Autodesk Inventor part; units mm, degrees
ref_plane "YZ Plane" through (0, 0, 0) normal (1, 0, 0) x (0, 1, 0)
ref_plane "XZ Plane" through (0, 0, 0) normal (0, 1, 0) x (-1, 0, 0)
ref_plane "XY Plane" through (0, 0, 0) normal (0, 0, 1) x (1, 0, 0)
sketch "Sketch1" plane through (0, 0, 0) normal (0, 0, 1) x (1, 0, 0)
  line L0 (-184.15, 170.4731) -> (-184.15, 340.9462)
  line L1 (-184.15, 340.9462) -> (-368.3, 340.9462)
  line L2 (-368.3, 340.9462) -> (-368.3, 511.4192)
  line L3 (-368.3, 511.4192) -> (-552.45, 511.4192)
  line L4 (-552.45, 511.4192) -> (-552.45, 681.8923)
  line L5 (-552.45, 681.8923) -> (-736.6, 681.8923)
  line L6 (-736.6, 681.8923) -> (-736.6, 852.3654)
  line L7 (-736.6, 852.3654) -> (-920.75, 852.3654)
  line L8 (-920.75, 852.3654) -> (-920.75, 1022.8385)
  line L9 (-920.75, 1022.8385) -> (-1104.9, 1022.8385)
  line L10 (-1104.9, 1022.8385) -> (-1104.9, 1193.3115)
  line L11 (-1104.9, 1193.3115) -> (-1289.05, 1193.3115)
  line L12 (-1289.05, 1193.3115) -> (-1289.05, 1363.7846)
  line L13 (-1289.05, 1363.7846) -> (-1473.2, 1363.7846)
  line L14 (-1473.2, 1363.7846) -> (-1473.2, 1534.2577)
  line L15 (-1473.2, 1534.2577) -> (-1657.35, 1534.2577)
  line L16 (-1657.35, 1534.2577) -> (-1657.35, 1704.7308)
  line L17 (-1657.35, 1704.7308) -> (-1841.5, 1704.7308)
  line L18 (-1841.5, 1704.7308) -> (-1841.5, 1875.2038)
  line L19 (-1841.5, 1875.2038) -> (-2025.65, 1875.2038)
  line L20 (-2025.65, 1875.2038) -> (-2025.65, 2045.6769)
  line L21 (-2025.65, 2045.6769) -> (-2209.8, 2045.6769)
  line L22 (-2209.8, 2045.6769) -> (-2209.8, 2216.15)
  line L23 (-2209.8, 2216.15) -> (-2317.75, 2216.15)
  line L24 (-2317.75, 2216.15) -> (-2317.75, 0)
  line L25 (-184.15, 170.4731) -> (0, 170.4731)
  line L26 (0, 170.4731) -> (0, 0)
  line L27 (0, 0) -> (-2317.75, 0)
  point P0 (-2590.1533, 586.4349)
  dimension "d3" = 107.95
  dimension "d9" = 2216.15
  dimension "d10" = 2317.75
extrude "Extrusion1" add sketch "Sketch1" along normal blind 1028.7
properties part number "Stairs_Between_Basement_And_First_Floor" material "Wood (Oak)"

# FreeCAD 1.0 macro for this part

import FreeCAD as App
import Part
import Sketcher
Q = App.Units.Quantity

doc = App.newDocument("Part")
body = doc.addObject("PartDesign::Body", "Body")

# Sketch on XY plane
sketch1 = body.newObject("Sketcher::SketchObject", "Sketch")
sketch1.AttachmentSupport = (doc.getObject("XY_Plane"), [""])
sketch1.MapMode = "FlatFace"
sketch1.addGeometry([
    Part.LineSegment(App.Vector(0, 170, 0), App.Vector(-184, 170, 0)),  # 0
    Part.LineSegment(App.Vector(-184, 170, 0), App.Vector(-184, 341, 0)),  # 1
    Part.LineSegment(App.Vector(-184, 341, 0), App.Vector(-368, 341, 0)),  # 2
    Part.LineSegment(App.Vector(-368, 341, 0), App.Vector(-368, 511, 0)),  # 3
    Part.LineSegment(App.Vector(-368, 511, 0), App.Vector(-552, 511, 0)),  # 4
    Part.LineSegment(App.Vector(-552, 511, 0), App.Vector(-552, 682, 0)),  # 5
    Part.LineSegment(App.Vector(-552, 682, 0), App.Vector(-737, 682, 0)),  # 6
    Part.LineSegment(App.Vector(-737, 682, 0), App.Vector(-737, 852, 0)),  # 7
    Part.LineSegment(App.Vector(-737, 852, 0), App.Vector(-921, 852, 0)),  # 8
    Part.LineSegment(App.Vector(-921, 852, 0), App.Vector(-921, 1023, 0)),  # 9
    Part.LineSegment(App.Vector(-921, 1023, 0), App.Vector(-1105, 1023, 0)),  # 10
    Part.LineSegment(App.Vector(-1105, 1023, 0), App.Vector(-1105, 1193, 0)),  # 11
    Part.LineSegment(App.Vector(-1105, 1193, 0), App.Vector(-1289, 1193, 0)),  # 12
    Part.LineSegment(App.Vector(-1289, 1193, 0), App.Vector(-1289, 1364, 0)),  # 13
    Part.LineSegment(App.Vector(-1289, 1364, 0), App.Vector(-1473, 1364, 0)),  # 14
    Part.LineSegment(App.Vector(-1473, 1364, 0), App.Vector(-1473, 1534, 0)),  # 15
    Part.LineSegment(App.Vector(-1473, 1534, 0), App.Vector(-1657, 1534, 0)),  # 16
    Part.LineSegment(App.Vector(-1657, 1534, 0), App.Vector(-1657, 1705, 0)),  # 17
    Part.LineSegment(App.Vector(-1657, 1705, 0), App.Vector(-1842, 1705, 0)),  # 18
    Part.LineSegment(App.Vector(-1842, 1705, 0), App.Vector(-1842, 1875, 0)),  # 19
    Part.LineSegment(App.Vector(-1842, 1875, 0), App.Vector(-2026, 1875, 0)),  # 20
    Part.LineSegment(App.Vector(-2026, 1875, 0), App.Vector(-2026, 2046, 0)),  # 21
    Part.LineSegment(App.Vector(-2026, 2046, 0), App.Vector(-2210, 2046, 0)),  # 22
    Part.LineSegment(App.Vector(-2210, 2046, 0), App.Vector(-2210, 2216, 0)),  # 23
    Part.LineSegment(App.Vector(-2210, 2216, 0), App.Vector(-2318, 2216, 0)),  # 24
    Part.LineSegment(App.Vector(-2318, 2216, 0), App.Vector(-2318, 0, 0)),  # 25
    Part.LineSegment(App.Vector(-2318, 0, 0), App.Vector(0, 0, 0)),  # 26
    Part.LineSegment(App.Vector(0, 0, 0), App.Vector(0, 170, 0)),  # 27
], False)
sketch1.addConstraint([
    Sketcher.Constraint("Coincident", 0, 2, 1, 1),
    Sketcher.Constraint("Coincident", 1, 2, 2, 1),
    Sketcher.Constraint("Coincident", 2, 2, 3, 1),
    Sketcher.Constraint("Coincident", 3, 2, 4, 1),
    Sketcher.Constraint("Coincident", 4, 2, 5, 1),
    Sketcher.Constraint("Coincident", 5, 2, 6, 1),
    Sketcher.Constraint("Coincident", 6, 2, 7, 1),
    Sketcher.Constraint("Coincident", 7, 2, 8, 1),
    Sketcher.Constraint("Coincident", 8, 2, 9, 1),
    Sketcher.Constraint("Coincident", 9, 2, 10, 1),
    Sketcher.Constraint("Coincident", 10, 2, 11, 1),
    Sketcher.Constraint("Coincident", 11, 2, 12, 1),
    Sketcher.Constraint("Coincident", 12, 2, 13, 1),
    Sketcher.Constraint("Coincident", 13, 2, 14, 1),
    Sketcher.Constraint("Coincident", 14, 2, 15, 1),
    Sketcher.Constraint("Coincident", 15, 2, 16, 1),
    Sketcher.Constraint("Coincident", 16, 2, 17, 1),
    Sketcher.Constraint("Coincident", 17, 2, 18, 1),
    Sketcher.Constraint("Coincident", 18, 2, 19, 1),
    Sketcher.Constraint("Coincident", 19, 2, 20, 1),
    Sketcher.Constraint("Coincident", 20, 2, 21, 1),
    Sketcher.Constraint("Coincident", 21, 2, 22, 1),
    Sketcher.Constraint("Coincident", 22, 2, 23, 1),
    Sketcher.Constraint("Coincident", 23, 2, 24, 1),
    Sketcher.Constraint("Coincident", 24, 2, 25, 1),
    Sketcher.Constraint("Coincident", 25, 2, 26, 1),
    Sketcher.Constraint("Coincident", 26, 2, 27, 1),
    Sketcher.Constraint("Coincident", 27, 2, 0, 1),
    Sketcher.Constraint("Horizontal", 0),
    Sketcher.Constraint("Vertical", 1),
    Sketcher.Constraint("Horizontal", 2),
    Sketcher.Constraint("Vertical", 3),
    Sketcher.Constraint("Horizontal", 4),
    Sketcher.Constraint("Vertical", 5),
    Sketcher.Constraint("Horizontal", 6),
    Sketcher.Constraint("Vertical", 7),
    Sketcher.Constraint("Horizontal", 8),
    Sketcher.Constraint("Vertical", 9),
    Sketcher.Constraint("Horizontal", 10),
    Sketcher.Constraint("Vertical", 11),
    Sketcher.Constraint("Horizontal", 12),
    Sketcher.Constraint("Vertical", 13),
    Sketcher.Constraint("Horizontal", 14),
    Sketcher.Constraint("Vertical", 15),
    Sketcher.Constraint("Horizontal", 16),
    Sketcher.Constraint("Vertical", 17),
    Sketcher.Constraint("Horizontal", 18),
    Sketcher.Constraint("Vertical", 19),
    Sketcher.Constraint("Horizontal", 20),
    Sketcher.Constraint("Vertical", 21),
    Sketcher.Constraint("Horizontal", 22),
    Sketcher.Constraint("Vertical", 23),
    Sketcher.Constraint("Horizontal", 24),
    Sketcher.Constraint("Vertical", 25),
    Sketcher.Constraint("Horizontal", 26),
    Sketcher.Constraint("Vertical", 27),
    Sketcher.Constraint("Coincident", 26, 2, -1, 1),
    Sketcher.Constraint("Equal", 0, 2),
    Sketcher.Constraint("Equal", 2, 4),
    Sketcher.Constraint("Equal", 4, 6),
    Sketcher.Constraint("Equal", 6, 8),
    Sketcher.Constraint("Equal", 8, 10),
    Sketcher.Constraint("Equal", 10, 12),
    Sketcher.Constraint("Equal", 12, 14),
    Sketcher.Constraint("Equal", 14, 16),
    Sketcher.Constraint("Equal", 16, 18),
    Sketcher.Constraint("Equal", 18, 20),
    Sketcher.Constraint("Equal", 20, 22),
    Sketcher.Constraint("Equal", 1, 3),
    Sketcher.Constraint("Equal", 3, 5),
    Sketcher.Constraint("Equal", 5, 7),
    Sketcher.Constraint("Equal", 7, 9),
    Sketcher.Constraint("Equal", 9, 11),
    Sketcher.Constraint("Equal", 11, 13),
    Sketcher.Constraint("Equal", 13, 15),
    Sketcher.Constraint("Equal", 15, 17),
    Sketcher.Constraint("Equal", 17, 19),
    Sketcher.Constraint("Equal", 19, 21),
    Sketcher.Constraint("Equal", 21, 23),
    Sketcher.Constraint("Equal", 23, 27),
    Sketcher.Constraint("DistanceX", 24, 2, 24, 1, Q("4.25 in")),
    Sketcher.Constraint("DistanceX", 26, 1, 26, 2, Q("91.25 in")),
    Sketcher.Constraint("DistanceY", 25, 2, 25, 1, Q("87.25 in")),
])
pad1 = body.newObject("PartDesign::Pad", "Pad")
pad1.Profile = sketch1
pad1.Length = Q("40.5 in")

doc.recompute()
